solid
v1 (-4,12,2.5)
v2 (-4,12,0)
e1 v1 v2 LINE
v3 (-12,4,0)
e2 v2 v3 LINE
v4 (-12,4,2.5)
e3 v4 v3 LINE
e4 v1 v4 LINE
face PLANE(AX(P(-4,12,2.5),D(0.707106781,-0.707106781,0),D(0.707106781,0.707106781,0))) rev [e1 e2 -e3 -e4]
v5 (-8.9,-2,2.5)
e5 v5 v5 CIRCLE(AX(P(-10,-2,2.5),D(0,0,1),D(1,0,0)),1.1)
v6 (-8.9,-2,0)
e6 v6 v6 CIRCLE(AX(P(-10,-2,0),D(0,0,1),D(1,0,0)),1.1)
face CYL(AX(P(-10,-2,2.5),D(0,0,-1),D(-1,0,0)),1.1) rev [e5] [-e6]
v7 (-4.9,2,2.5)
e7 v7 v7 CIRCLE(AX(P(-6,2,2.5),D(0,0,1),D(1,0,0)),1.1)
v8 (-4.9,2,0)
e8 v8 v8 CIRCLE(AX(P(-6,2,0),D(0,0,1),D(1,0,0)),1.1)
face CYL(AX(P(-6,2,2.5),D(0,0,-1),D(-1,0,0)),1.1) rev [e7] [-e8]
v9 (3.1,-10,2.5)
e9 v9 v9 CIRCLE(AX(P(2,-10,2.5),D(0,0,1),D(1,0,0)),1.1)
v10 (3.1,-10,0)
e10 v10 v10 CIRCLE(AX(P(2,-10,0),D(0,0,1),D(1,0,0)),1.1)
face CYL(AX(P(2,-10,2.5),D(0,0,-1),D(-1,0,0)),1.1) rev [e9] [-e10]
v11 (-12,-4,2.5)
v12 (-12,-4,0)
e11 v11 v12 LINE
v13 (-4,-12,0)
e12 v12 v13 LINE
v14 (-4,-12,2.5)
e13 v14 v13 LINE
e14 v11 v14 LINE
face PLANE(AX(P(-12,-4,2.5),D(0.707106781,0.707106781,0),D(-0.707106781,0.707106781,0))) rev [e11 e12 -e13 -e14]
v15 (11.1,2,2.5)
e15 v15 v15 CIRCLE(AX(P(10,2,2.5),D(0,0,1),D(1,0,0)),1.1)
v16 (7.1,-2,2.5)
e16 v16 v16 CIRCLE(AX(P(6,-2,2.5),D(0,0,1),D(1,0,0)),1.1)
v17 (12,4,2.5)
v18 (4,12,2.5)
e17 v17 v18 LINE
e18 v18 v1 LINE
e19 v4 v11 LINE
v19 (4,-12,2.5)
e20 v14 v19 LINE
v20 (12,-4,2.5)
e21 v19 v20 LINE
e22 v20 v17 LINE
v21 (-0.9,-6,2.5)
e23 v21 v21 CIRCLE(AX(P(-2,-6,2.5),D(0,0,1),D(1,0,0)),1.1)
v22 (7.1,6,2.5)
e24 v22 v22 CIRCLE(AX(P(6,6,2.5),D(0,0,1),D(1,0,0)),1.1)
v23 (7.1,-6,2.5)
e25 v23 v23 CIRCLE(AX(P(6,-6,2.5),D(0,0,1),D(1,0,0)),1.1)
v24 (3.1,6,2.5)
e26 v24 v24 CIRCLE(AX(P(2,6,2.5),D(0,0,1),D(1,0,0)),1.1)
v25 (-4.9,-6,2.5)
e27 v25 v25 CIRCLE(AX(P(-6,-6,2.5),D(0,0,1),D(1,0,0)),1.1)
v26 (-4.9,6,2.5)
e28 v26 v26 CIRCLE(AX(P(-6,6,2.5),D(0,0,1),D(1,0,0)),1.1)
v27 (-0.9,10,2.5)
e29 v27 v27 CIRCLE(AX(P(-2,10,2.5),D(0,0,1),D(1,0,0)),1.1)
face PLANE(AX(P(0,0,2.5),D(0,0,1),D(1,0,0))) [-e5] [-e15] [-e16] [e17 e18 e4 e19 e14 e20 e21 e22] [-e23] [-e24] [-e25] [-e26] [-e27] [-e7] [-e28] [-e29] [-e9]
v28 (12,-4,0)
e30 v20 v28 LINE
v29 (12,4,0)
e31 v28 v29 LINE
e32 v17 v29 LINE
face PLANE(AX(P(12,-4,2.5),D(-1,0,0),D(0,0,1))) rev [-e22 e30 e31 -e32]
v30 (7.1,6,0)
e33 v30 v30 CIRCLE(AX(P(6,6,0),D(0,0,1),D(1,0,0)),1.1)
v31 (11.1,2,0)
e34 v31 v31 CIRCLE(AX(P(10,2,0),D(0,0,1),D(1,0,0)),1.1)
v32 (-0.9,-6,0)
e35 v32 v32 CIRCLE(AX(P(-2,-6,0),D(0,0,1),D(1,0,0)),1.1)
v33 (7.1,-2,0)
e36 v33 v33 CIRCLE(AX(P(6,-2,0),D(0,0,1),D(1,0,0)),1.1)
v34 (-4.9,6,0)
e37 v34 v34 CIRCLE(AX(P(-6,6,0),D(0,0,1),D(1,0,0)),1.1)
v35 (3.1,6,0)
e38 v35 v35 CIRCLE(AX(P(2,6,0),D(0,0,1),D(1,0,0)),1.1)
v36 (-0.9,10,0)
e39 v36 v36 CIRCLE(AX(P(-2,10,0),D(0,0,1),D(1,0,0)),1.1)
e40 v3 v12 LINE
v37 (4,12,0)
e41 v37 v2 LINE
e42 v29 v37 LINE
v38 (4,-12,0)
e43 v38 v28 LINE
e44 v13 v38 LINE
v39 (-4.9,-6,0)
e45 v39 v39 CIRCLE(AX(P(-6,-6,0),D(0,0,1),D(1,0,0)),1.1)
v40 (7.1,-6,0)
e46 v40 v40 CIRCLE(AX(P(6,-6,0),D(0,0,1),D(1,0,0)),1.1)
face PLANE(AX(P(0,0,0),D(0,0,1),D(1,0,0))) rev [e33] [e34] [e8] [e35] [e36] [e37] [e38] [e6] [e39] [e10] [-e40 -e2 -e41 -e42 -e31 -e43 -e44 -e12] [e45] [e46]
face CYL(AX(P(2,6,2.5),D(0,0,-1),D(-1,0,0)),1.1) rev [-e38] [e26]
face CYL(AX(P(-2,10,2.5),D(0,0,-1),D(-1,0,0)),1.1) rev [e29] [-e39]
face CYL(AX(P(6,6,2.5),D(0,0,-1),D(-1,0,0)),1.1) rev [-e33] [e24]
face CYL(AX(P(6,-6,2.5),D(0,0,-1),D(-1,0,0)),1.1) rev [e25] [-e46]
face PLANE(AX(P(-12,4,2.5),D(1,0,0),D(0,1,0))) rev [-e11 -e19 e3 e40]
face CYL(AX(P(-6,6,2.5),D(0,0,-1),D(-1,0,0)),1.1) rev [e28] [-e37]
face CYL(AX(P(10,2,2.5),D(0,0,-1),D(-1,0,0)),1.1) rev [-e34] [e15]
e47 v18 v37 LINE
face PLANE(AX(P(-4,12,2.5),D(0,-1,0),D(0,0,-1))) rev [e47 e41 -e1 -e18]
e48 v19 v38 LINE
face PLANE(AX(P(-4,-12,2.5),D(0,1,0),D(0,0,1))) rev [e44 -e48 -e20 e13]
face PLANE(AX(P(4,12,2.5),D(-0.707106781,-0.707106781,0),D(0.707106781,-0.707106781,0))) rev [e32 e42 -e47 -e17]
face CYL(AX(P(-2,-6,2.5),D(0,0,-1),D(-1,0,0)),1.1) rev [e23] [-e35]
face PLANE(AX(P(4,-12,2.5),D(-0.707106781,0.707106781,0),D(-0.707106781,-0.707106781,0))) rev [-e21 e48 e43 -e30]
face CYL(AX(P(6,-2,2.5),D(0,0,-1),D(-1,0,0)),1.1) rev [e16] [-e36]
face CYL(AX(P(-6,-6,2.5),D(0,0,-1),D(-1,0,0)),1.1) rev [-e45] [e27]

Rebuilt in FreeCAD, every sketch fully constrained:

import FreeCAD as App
import Part
import Sketcher

doc = App.newDocument("Part")
params = doc.addObject("Spreadsheet::Sheet", "Params")
for row, (alias, value) in enumerate([
    ("sketch1_diameter", "2.2 mm"),
    ("sketch1_width", "8 mm"),
    ("pad1_length", "2.5 mm"),
], start=1):
    params.set(f"A{row}", alias)
    params.set(f"B{row}", "=" + value)
    params.setAlias(f"B{row}", alias)

body = doc.addObject("PartDesign::Body", "Body")

# Sketch on XY plane
sketch1 = body.newObject("Sketcher::SketchObject", "Sketch")
sketch1.AttachmentSupport = (doc.getObject("XY_Plane"), [""])
sketch1.MapMode = "FlatFace"
sketch1.addGeometry([
    Part.LineSegment(App.Vector(4, 12, 0), App.Vector(-4, 12, 0)),  # 0
    Part.LineSegment(App.Vector(-4, 12, 0), App.Vector(-12, 4, 0)),  # 1
    Part.LineSegment(App.Vector(-12, 4, 0), App.Vector(-12, -4, 0)),  # 2
    Part.LineSegment(App.Vector(-12, -4, 0), App.Vector(-4, -12, 0)),  # 3
    Part.LineSegment(App.Vector(-4, -12, 0), App.Vector(4, -12, 0)),  # 4
    Part.LineSegment(App.Vector(4, -12, 0), App.Vector(12, -4, 0)),  # 5
    Part.LineSegment(App.Vector(12, -4, 0), App.Vector(12, 4, 0)),  # 6
    Part.LineSegment(App.Vector(12, 4, 0), App.Vector(4, 12, 0)),  # 7
    Part.Circle(App.Vector(6, -6, 0), App.Vector(0, 0, 1), 1.1),  # 8
    Part.Circle(App.Vector(2, -10, 0), App.Vector(0, 0, 1), 1.1),  # 9
    Part.Circle(App.Vector(6, -2, 0), App.Vector(0, 0, 1), 1.1),  # 10
    Part.Circle(App.Vector(-2, -6, 0), App.Vector(0, 0, 1), 1.1),  # 11
    Part.Circle(App.Vector(-6, -6, 0), App.Vector(0, 0, 1), 1.1),  # 12
    Part.Circle(App.Vector(-10, -2, 0), App.Vector(0, 0, 1), 1.1),  # 13
    Part.Circle(App.Vector(10, 2, 0), App.Vector(0, 0, 1), 1.1),  # 14
    Part.Circle(App.Vector(6, 6, 0), App.Vector(0, 0, 1), 1.1),  # 15
    Part.Circle(App.Vector(2, 6, 0), App.Vector(0, 0, 1), 1.1),  # 16
    Part.Circle(App.Vector(-6, 2, 0), App.Vector(0, 0, 1), 1.1),  # 17
    Part.Circle(App.Vector(-2, 10, 0), App.Vector(0, 0, 1), 1.1),  # 18
    Part.Circle(App.Vector(-6, 6, 0), App.Vector(0, 0, 1), 1.1),  # 19
], False)
sketch1.addConstraint([
    Sketcher.Constraint("Coincident", 0, 2, 1, 1),
    Sketcher.Constraint("Coincident", 1, 2, 2, 1),
    Sketcher.Constraint("Coincident", 2, 2, 3, 1),
    Sketcher.Constraint("Coincident", 3, 2, 4, 1),
    Sketcher.Constraint("Coincident", 4, 2, 5, 1),
    Sketcher.Constraint("Coincident", 5, 2, 6, 1),
    Sketcher.Constraint("Coincident", 6, 2, 7, 1),
    Sketcher.Constraint("Coincident", 7, 2, 0, 1),
    Sketcher.Constraint("Horizontal", 0),
    Sketcher.Constraint("Vertical", 2),
    Sketcher.Constraint("Horizontal", 4),
    Sketcher.Constraint("Vertical", 6),
    Sketcher.Constraint("Equal", 8, 9),
    Sketcher.Constraint("Equal", 9, 10),
    Sketcher.Constraint("Equal", 10, 11),
    Sketcher.Constraint("Equal", 11, 12),
    Sketcher.Constraint("Equal", 12, 13),
    Sketcher.Constraint("Equal", 13, 14),
    Sketcher.Constraint("Equal", 14, 15),
    Sketcher.Constraint("Equal", 15, 16),
    Sketcher.Constraint("Equal", 16, 17),
    Sketcher.Constraint("Equal", 17, 18),
    Sketcher.Constraint("Equal", 18, 19),
    Sketcher.Constraint("Symmetric", 13, 3, 14, 3, -1, 1),
    Sketcher.Constraint("Symmetric", 12, 3, 15, 3, -1, 1),
    Sketcher.Constraint("Symmetric", 11, 3, 16, 3, -1, 1),
    Sketcher.Constraint("Symmetric", 10, 3, 17, 3, -1, 1),
    Sketcher.Constraint("Symmetric", 9, 3, 18, 3, -1, 1),
    Sketcher.Constraint("Symmetric", 8, 3, 19, 3, -1, 1),
    Sketcher.Constraint("Symmetric", 0, 2, 4, 2, -1, 1),
    Sketcher.Constraint("Symmetric", 1, 2, 5, 2, -1, 1),
    Sketcher.Constraint("Symmetric", 8, 3, 12, 3, -2),
    Sketcher.Constraint("Perpendicular", 1, 3),
    Sketcher.Constraint("Perpendicular", 5, 7),
    Sketcher.Constraint("Horizontal", 8, 3, 11, 3),
    Sketcher.Constraint("Horizontal", 10, 3, 13, 3),
    Sketcher.Constraint("Horizontal", 2, 2, 5, 2),
    Sketcher.Constraint("Horizontal", 1, 2, 6, 2),
    Sketcher.Constraint("Vertical", 8, 3, 10, 3),
    Sketcher.Constraint("Vertical", 9, 3, 16, 3),
    Sketcher.Constraint("Vertical", 0, 2, 3, 2),
    Sketcher.Constraint("Equal", 4, 2),
    Sketcher.Constraint("Diameter", 8, 2.2),
    Sketcher.Constraint("DistanceX", 0, 2, 0, 1, 8.0),
    Sketcher.Constraint("DistanceX", -1, 1, 8, 3, 6.0),
    Sketcher.Constraint("DistanceY", 8, 3, -1, 1, 6.0),
    Sketcher.Constraint("DistanceX", -1, 1, 9, 3, 2.0),
    Sketcher.Constraint("DistanceY", 9, 3, -1, 1, 10.0),
    Sketcher.Constraint("DistanceY", 10, 3, -1, 1, 2.0),
    Sketcher.Constraint("DistanceX", 13, 3, -1, 1, 10.0),
    Sketcher.Constraint("DistanceY", -1, 1, 0, 2, 12.0),
])
sketch1.setExpression("Constraints[42]", "Params.sketch1_diameter")
sketch1.setExpression("Constraints[43]", "Params.sketch1_width")
pad1 = body.newObject("PartDesign::Pad", "Pad")
pad1.Profile = sketch1
pad1.setExpression("Length", "Params.pad1_length")

doc.recompute()
